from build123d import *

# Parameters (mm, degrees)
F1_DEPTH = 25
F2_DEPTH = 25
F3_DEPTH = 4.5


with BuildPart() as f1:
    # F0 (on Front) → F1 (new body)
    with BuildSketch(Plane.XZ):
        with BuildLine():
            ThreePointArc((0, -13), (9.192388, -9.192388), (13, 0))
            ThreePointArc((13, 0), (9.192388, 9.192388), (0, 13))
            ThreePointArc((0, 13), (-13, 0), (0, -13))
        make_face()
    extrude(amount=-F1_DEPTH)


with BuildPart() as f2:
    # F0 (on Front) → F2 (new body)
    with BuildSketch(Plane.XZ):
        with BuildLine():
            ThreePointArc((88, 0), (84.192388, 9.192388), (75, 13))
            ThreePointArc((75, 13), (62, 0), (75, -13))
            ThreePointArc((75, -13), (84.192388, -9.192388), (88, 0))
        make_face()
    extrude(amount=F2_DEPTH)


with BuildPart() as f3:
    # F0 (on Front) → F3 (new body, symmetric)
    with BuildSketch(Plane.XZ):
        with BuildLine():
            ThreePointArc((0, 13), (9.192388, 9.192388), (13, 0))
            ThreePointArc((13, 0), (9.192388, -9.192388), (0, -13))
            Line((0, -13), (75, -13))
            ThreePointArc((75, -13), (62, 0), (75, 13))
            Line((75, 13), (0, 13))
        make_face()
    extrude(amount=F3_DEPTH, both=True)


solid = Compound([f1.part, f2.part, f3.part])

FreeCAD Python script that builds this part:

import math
import FreeCAD as App
import Part
import Sketcher
from FreeCAD import Vector
Q = App.Units.Quantity

doc = App.newDocument("Part")
params = doc.addObject("Spreadsheet::Sheet", "Params")
for row, (alias, value) in enumerate([
    ("sketch1_radius", "13.000001 mm"),
    ("pad1_length", "25 mm"),
    ("sketch2_radius", "13.000001 mm"),
    ("pad2_length", "25 mm"),
    ("sketch3_radius", "13.000001 mm"),
    ("sketch3_width", "75 mm"),
    ("pad3_length", "9 mm"),
], start=1):
    params.set(f"A{row}", alias)
    params.set(f"B{row}", "=" + value)
    params.setAlias(f"B{row}", alias)

body = doc.addObject("PartDesign::Body", "Body")

sketch1 = body.newObject("Sketcher::SketchObject", "Sketch")
sketch1.AttachmentSupport = (doc.getObject("XZ_Plane"), [""])
sketch1.MapMode = "FlatFace"
sketch1.addGeometry(Part.ArcOfCircle(Part.Circle(Vector(0, 0, 0), Vector(0, 0, 1), 13), math.radians(-90), math.radians(0)), False)
sketch1.addGeometry(Part.ArcOfCircle(Part.Circle(Vector(0, 0, 0), Vector(0, 0, 1), 13), math.radians(0), math.radians(90)), False)
sketch1.addGeometry(Part.ArcOfCircle(Part.Circle(Vector(0, 0, 0), Vector(0, 0, 1), 13), math.radians(90), math.radians(270)), False)
sketch1.addConstraint(Sketcher.Constraint("Tangent", 0, 2, 1, 1))
sketch1.addConstraint(Sketcher.Constraint("Tangent", 1, 2, 2, 1))
sketch1.addConstraint(Sketcher.Constraint("Tangent", 2, 2, 0, 1))
sketch1.addConstraint(Sketcher.Constraint("Coincident", 0, 3, -1, 1))
sketch1.addConstraint(Sketcher.Constraint("PointOnObject", 0, 2, -1))
sketch1.addConstraint(Sketcher.Constraint("PointOnObject", 1, 2, -2))
sketch1.addConstraint(Sketcher.Constraint("PointOnObject", 2, 2, -2))
sketch1.addConstraint(Sketcher.Constraint("Radius", 0, Q("13.000001 mm")))
sketch1.setExpression("Constraints[7]", "Params.sketch1_radius")
pad1 = body.newObject("PartDesign::Pad", "Pad")
pad1.Profile = sketch1
pad1.setExpression("Length", "Params.pad1_length")
pad1.Reversed = True
body2 = doc.addObject("PartDesign::Body", "Body001")

sketch2 = body2.newObject("Sketcher::SketchObject", "Sketch001")
sketch2.AttachmentSupport = (doc.getObject("XZ_Plane001"), [""])
sketch2.MapMode = "FlatFace"
sketch2.addGeometry(Part.ArcOfCircle(Part.Circle(Vector(75, 0, 0), Vector(0, 0, 1), 13), math.radians(0), math.radians(90)), False)
sketch2.addGeometry(Part.ArcOfCircle(Part.Circle(Vector(75, 0, 0), Vector(0, 0, 1), 13), math.radians(90), math.radians(270)), False)
sketch2.addGeometry(Part.ArcOfCircle(Part.Circle(Vector(75, 0, 0), Vector(0, 0, 1), 13), math.radians(-90), math.radians(0)), False)
sketch2.addConstraint(Sketcher.Constraint("Tangent", 0, 2, 1, 1))
sketch2.addConstraint(Sketcher.Constraint("Tangent", 1, 2, 2, 1))
sketch2.addConstraint(Sketcher.Constraint("Tangent", 2, 2, 0, 1))
sketch2.addConstraint(Sketcher.Constraint("Symmetric", 0, 2, 1, 2, -1))
sketch2.addConstraint(Sketcher.Constraint("PointOnObject", 2, 2, -1))
sketch2.addConstraint(Sketcher.Constraint("Vertical", 2, 3, 0, 2))
sketch2.addConstraint(Sketcher.Constraint("Radius", 0, Q("13.000001 mm")))
sketch2.addConstraint(Sketcher.Constraint("DistanceX", -1, 1, 0, 3, Q("74.999999 mm")))
sketch2.setExpression("Constraints[6]", "Params.sketch2_radius")
pad2 = body2.newObject("PartDesign::Pad", "Pad001")
pad2.Profile = sketch2
pad2.setExpression("Length", "Params.pad2_length")
body3 = doc.addObject("PartDesign::Body", "Body002")

sketch3 = body3.newObject("Sketcher::SketchObject", "Sketch002")
sketch3.AttachmentSupport = (doc.getObject("XZ_Plane002"), [""])
sketch3.MapMode = "FlatFace"
sketch3.addGeometry(Part.ArcOfCircle(Part.Circle(Vector(0, 0, 0), Vector(0, 0, 1), 13), math.radians(0), math.radians(90)), False)
sketch3.addGeometry(Part.ArcOfCircle(Part.Circle(Vector(0, 0, 0), Vector(0, 0, 1), 13), math.radians(-90), math.radians(0)), False)
sketch3.addGeometry(Part.LineSegment(Vector(0, -13, 0), Vector(75, -13, 0)), False)
sketch3.addGeometry(Part.ArcOfCircle(Part.Circle(Vector(75, 0, 0), Vector(0, 0, 1), 13), math.radians(90), math.radians(270)), False)
sketch3.addGeometry(Part.LineSegment(Vector(75, 13, 0), Vector(0, 13, 0)), False)
sketch3.addConstraint(Sketcher.Constraint("Tangent", 0, 1, 1, 2))
sketch3.addConstraint(Sketcher.Constraint("Tangent", 1, 1, 2, 1))
sketch3.addConstraint(Sketcher.Constraint("Tangent", 2, 2, 3, 2))
sketch3.addConstraint(Sketcher.Constraint("Tangent", 3, 1, 4, 1))
sketch3.addConstraint(Sketcher.Constraint("Tangent", 4, 2, 0, 2))
sketch3.addConstraint(Sketcher.Constraint("Horizontal", 2))
sketch3.addConstraint(Sketcher.Constraint("Horizontal", 4))
sketch3.addConstraint(Sketcher.Constraint("Coincident", 0, 3, -1, 1))
sketch3.addConstraint(Sketcher.Constraint("Equal", 0, 1))
sketch3.addConstraint(Sketcher.Constraint("PointOnObject", 0, 1, -1))
sketch3.addConstraint(Sketcher.Constraint("Radius", 0, Q("13.000001 mm")))
sketch3.addConstraint(Sketcher.Constraint("DistanceX", 2, 1, 2, 2, Q("75 mm")))
sketch3.setExpression("Constraints[10]", "Params.sketch3_radius")
sketch3.setExpression("Constraints[11]", "Params.sketch3_width")
pad3 = body3.newObject("PartDesign::Pad", "Pad002")
pad3.Profile = sketch3
pad3.setExpression("Length", "Params.pad3_length")
pad3.Midplane = True

doc.recompute()
